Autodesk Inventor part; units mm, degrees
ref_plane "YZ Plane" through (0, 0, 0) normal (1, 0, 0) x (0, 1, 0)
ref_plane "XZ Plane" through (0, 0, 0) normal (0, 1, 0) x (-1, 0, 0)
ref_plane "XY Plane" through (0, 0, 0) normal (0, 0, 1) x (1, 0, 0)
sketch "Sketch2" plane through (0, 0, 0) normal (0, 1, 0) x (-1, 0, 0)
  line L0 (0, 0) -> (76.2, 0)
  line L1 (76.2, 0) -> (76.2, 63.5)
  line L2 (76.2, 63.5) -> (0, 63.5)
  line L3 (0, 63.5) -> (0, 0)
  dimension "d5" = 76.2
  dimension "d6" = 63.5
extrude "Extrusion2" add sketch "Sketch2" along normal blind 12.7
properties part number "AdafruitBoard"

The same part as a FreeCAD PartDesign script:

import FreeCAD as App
import Part
import Sketcher
from FreeCAD import Vector
Q = App.Units.Quantity


def add_polygon(sketch, points):
    """Adds a closed chain of lines whose ends are joined by coincident constraints."""
    first, n = sketch.GeometryCount, len(points)
    for a, b in zip(points, points[1:] + points[:1]):
        sketch.addGeometry(Part.LineSegment(App.Vector(*a, 0), App.Vector(*b, 0)), False)
    for i in range(n):
        sketch.addConstraint(Sketcher.Constraint("Coincident", first + i, 2, first + (i + 1) % n, 1))

doc = App.newDocument("Part")
body = doc.addObject("PartDesign::Body", "Body")

# Sketch on XZ plane
sketch1 = doc.addObject("Sketcher::SketchObject", "Sketch")
body.addObject(sketch1)
sketch1.AttachmentSupport = (doc.XZ_Plane, [""])
sketch1.MapMode = "FlatFace"
add_polygon(sketch1, [(0, 64), (0, 0), (-76, 0), (-76, 64)])  # lines 0-3
sketch1.addConstraint([
    Sketcher.Constraint("Vertical", 0),
    Sketcher.Constraint("Horizontal", 1),
    Sketcher.Constraint("Vertical", 2),
    Sketcher.Constraint("Horizontal", 3),
    Sketcher.Constraint("Coincident", 0, 2, -1, 1),
    Sketcher.Constraint("DistanceX", 1, 2, 1, 1, Q("3 in")),
    Sketcher.Constraint("DistanceY", 0, 2, 0, 1, Q("2.5 in")),
])
pad1 = doc.addObject("PartDesign::Pad", "Pad")
body.addObject(pad1)
pad1.Profile = sketch1
pad1.Length = Q("0.5 in")
pad1.Reversed = True

doc.recompute()
